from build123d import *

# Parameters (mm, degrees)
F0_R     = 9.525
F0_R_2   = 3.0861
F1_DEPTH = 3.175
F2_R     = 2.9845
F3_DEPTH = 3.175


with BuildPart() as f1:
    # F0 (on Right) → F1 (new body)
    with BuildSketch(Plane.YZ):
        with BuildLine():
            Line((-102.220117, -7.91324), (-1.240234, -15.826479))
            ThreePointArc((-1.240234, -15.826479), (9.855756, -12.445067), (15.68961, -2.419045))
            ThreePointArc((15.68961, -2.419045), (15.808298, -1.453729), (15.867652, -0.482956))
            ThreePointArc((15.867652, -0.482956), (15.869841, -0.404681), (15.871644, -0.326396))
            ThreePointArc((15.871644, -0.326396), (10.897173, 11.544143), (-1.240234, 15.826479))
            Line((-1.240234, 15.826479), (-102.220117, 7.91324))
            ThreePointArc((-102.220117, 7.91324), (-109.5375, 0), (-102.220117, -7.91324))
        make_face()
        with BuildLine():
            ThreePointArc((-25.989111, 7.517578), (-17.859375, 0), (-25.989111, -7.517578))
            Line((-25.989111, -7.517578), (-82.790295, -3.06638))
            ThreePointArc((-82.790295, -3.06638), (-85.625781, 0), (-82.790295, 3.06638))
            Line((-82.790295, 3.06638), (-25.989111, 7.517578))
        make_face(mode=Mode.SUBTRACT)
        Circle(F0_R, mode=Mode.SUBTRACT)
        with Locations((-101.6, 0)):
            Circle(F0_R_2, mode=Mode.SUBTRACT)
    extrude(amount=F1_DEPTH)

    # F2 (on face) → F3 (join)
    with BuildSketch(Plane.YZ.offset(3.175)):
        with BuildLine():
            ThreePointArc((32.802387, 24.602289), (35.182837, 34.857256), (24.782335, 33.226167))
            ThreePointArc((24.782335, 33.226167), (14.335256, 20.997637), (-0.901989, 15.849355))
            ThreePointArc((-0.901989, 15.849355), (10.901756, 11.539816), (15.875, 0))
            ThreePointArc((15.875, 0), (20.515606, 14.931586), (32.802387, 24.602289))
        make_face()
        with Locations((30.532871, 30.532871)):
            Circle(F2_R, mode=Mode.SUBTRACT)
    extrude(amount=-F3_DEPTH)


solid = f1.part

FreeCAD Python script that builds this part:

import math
import FreeCAD as App
import Part
import Sketcher

V = App.Vector
Q = App.Units.Quantity

doc = App.newDocument("Part")
body = doc.addObject("PartDesign::Body", "Body")

# Sketch on YZ plane
sketch1 = body.newObject("Sketcher::SketchObject", "Sketch")
sketch1.AttachmentSupport = (doc.getObject("YZ_Plane"), [""])
sketch1.MapMode = "FlatFace"
sketch1.addGeometry(Part.LineSegment(V(-102.220117, -7.91324, 0), V(-1.240234, -15.826479, 0)), False)
sketch1.addGeometry(Part.ArcOfCircle(Part.Circle(V(0, 0.000001, 0), V(0, 0, 1), 15.875001), math.radians(-94.480796), math.radians(-8.764926)), False)
sketch1.addGeometry(Part.ArcOfCircle(Part.Circle(V(-0.000333, 0.000027, 0), V(0, 0, 1), 15.875334), math.radians(-8.764835), math.radians(-1.743406)), False)
sketch1.addGeometry(Part.ArcOfCircle(Part.Circle(V(-0.005112, 0.000102, 0), V(0, 0, 1), 15.880113), math.radians(-1.743152), math.radians(-1.178095)), False)
sketch1.addGeometry(Part.ArcOfCircle(Part.Circle(V(0, 0, 0), V(0, 0, 1), 15.875), math.radians(-1.178106), math.radians(94.480797)), False)
sketch1.addGeometry(Part.LineSegment(V(-1.240234, 15.826479, 0), V(-102.220117, 7.91324, 0)), False)
sketch1.addGeometry(Part.ArcOfCircle(Part.Circle(V(-101.6, 0, 0), V(0, 0, 1), 7.9375), math.radians(94.4808), math.radians(265.5192)), False)
sketch1.addGeometry(Part.Circle(V(-101.6, 0, 0), V(0, 0, 1), 3.0861), False)
sketch1.addGeometry(Part.LineSegment(V(-82.790295, 3.06638, 0), V(-25.989111, 7.517578, 0)), False)
sketch1.addGeometry(Part.ArcOfCircle(Part.Circle(V(-25.4, 0, 0), V(0, 0, 1), 7.540625), math.radians(-94.480794), math.radians(94.480794)), False)
sketch1.addGeometry(Part.LineSegment(V(-25.989111, -7.517578, 0), V(-82.790295, -3.06638, 0)), False)
sketch1.addGeometry(Part.ArcOfCircle(Part.Circle(V(-82.55, 0, 0), V(0, 0, 1), 3.075781), math.radians(94.480789), math.radians(265.519211)), False)
sketch1.addGeometry(Part.Circle(V(0, 0, 0), V(0, 0, 1), 9.525), False)
sketch1.addConstraint(Sketcher.Constraint("Coincident", 0, 2, 1, 1))
sketch1.addConstraint(Sketcher.Constraint("Coincident", 1, 2, 2, 1))
sketch1.addConstraint(Sketcher.Constraint("Coincident", 2, 2, 3, 1))
sketch1.addConstraint(Sketcher.Constraint("Coincident", 3, 2, 4, 1))
sketch1.addConstraint(Sketcher.Constraint("Coincident", 4, 2, 5, 1))
sketch1.addConstraint(Sketcher.Constraint("Coincident", 5, 2, 6, 1))
sketch1.addConstraint(Sketcher.Constraint("Coincident", 6, 2, 0, 1))
sketch1.addConstraint(Sketcher.Constraint("Coincident", 8, 2, 9, 2))
sketch1.addConstraint(Sketcher.Constraint("Coincident", 9, 1, 10, 1))
sketch1.addConstraint(Sketcher.Constraint("Coincident", 10, 2, 11, 2))
sketch1.addConstraint(Sketcher.Constraint("Coincident", 11, 1, 8, 1))
sketch1.addConstraint(Sketcher.Constraint("Coincident", 1, 3, -1, 1))
sketch1.addConstraint(Sketcher.Constraint("Coincident", 4, 3, -1, 1))
sketch1.addConstraint(Sketcher.Constraint("Coincident", 12, 3, -1, 1))
sketch1.addConstraint(Sketcher.Constraint("Coincident", 7, 3, 6, 3))
sketch1.addConstraint(Sketcher.Constraint("PointOnObject", 6, 3, -1))
sketch1.addConstraint(Sketcher.Constraint("PointOnObject", 9, 3, -1))
sketch1.addConstraint(Sketcher.Constraint("PointOnObject", 11, 3, -1))
sketch1.addConstraint(Sketcher.Constraint("Diameter", 12, Q("0.75 in")))
sketch1.addConstraint(Sketcher.Constraint("Diameter", 7, Q("0.243 in")))
sketch1.addConstraint(Sketcher.Constraint("DistanceX", 6, 3, -1, 1, Q("4 in")))
sketch1.addConstraint(Sketcher.Constraint("DistanceX", 9, 3, -1, 1, Q("1 in")))
sketch1.addConstraint(Sketcher.Constraint("Radius", 1, Q("0.625 in")))
sketch1.addConstraint(Sketcher.Constraint("Radius", 4, Q("0.625 in")))
sketch1.addConstraint(Sketcher.Constraint("Radius", 6, Q("0.3125 in")))
sketch1.addConstraint(Sketcher.Constraint("Radius", 9, Q("0.296875 in")))
sketch1.addConstraint(Sketcher.Constraint("DistanceX", 11, 3, -1, 1, Q("3.25 in")))
sketch1.addConstraint(Sketcher.Constraint("Radius", 11, 3.075781))
sketch1.addConstraint(Sketcher.Constraint("Radius", 2, 15.875334))
sketch1.addConstraint(Sketcher.Constraint("Radius", 3, 15.880113))
sketch1.addConstraint(Sketcher.Constraint("DistanceY", -1, 1, 3, 3, 0.000102))
sketch1.addConstraint(Sketcher.Constraint("DistanceX", 0, 2, 2, 3, 1.239901))
sketch1.addConstraint(Sketcher.Constraint("DistanceX", 4, 2, 2, 3, 1.239901))
sketch1.addConstraint(Sketcher.Constraint("DistanceY", 8, 2, 4, 2, 8.308901))
sketch1.addConstraint(Sketcher.Constraint("DistanceY", 0, 2, 9, 1, 8.308901))
sketch1.addConstraint(Sketcher.Constraint("DistanceX", -1, 1, 1, 2, 15.68961))
sketch1.addConstraint(Sketcher.Constraint("DistanceX", -1, 1, 2, 2, 15.867652))
sketch1.addConstraint(Sketcher.Constraint("DistanceY", -1, 1, 5, 2, 7.91324))
sketch1.addConstraint(Sketcher.Constraint("DistanceY", 6, 2, -1, 1, 7.91324))
sketch1.addConstraint(Sketcher.Constraint("DistanceY", 10, 2, -1, 1, 3.06638))
sketch1.addConstraint(Sketcher.Constraint("DistanceY", -1, 1, 11, 1, 3.06638))
sketch1.addConstraint(Sketcher.Constraint("DistanceX", 2, 2, 3, 2, 0.003992))
pad1 = body.newObject("PartDesign::Pad", "Pad")
pad1.Profile = sketch1
pad1.Length = Q("0.125 in")

# Sketch on YZ plane
sketch2 = body.newObject("Sketcher::SketchObject", "Sketch001")
sketch2.AttachmentSupport = (doc.getObject("YZ_Plane"), [""])
sketch2.MapMode = "FlatFace"
sketch2.AttachmentOffset = App.Placement(V(0, 0, 0.125 * 25.4), App.Rotation())
sketch2.addGeometry(Part.ArcOfCircle(Part.Circle(V(30.53287, 30.53287, 0), V(0, 0, 1), 6.35), math.radians(-69.059135), math.radians(154.903684)), False)
sketch2.addGeometry(Part.ArcOfCircle(Part.Circle(V(-2.621325, 46.060825, 0), V(0, 0, 1), 30.260354), math.radians(-86.742808), math.radians(-25.096306)), False)
sketch2.addGeometry(Part.ArcOfCircle(Part.Circle(V(0, 0.000001, 0), V(0, 0, 1), 15.875), math.radians(-0.000002), math.radians(93.257198)), False)
sketch2.addGeometry(Part.ArcOfCircle(Part.Circle(V(42.217196, -0.000001, 0), V(0, 0, 1), 26.342196), math.radians(110.940858), math.radians(179.999999)), False)
sketch2.addGeometry(Part.Circle(V(30.532871, 30.532871, 0), V(0, 0, 1), 2.9845), False)
sketch2.addConstraint(Sketcher.Constraint("Tangent", 0, 2, 1, 2))
sketch2.addConstraint(Sketcher.Constraint("Tangent", 1, 1, 2, 2))
sketch2.addConstraint(Sketcher.Constraint("Tangent", 2, 1, 3, 2))
sketch2.addConstraint(Sketcher.Constraint("Tangent", 3, 1, 0, 1))
sketch2.addConstraint(Sketcher.Constraint("Coincident", 2, 3, -1, 1))
sketch2.addConstraint(Sketcher.Constraint("Coincident", 4, 3, 0, 3))
sketch2.addConstraint(Sketcher.Constraint("PointOnObject", 3, 3, -1))
sketch2.addConstraint(Sketcher.Constraint("Radius", 0, Q("0.25 in")))
sketch2.addConstraint(Sketcher.Constraint("Diameter", 4, Q("0.235 in")))
sketch2.addConstraint(Sketcher.Constraint("Radius", 2, Q("0.625 in")))
sketch2.addConstraint(Sketcher.Constraint("Radius", 1, 30.260354))
sketch2.addConstraint(Sketcher.Constraint("Radius", 3, 26.342196))
sketch2.addConstraint(Sketcher.Constraint("DistanceX", -1, 1, 0, 3, 30.53287))
pad2 = body.newObject("PartDesign::Pad", "Pad001")
pad2.Profile = sketch2
pad2.Length = Q("0.125 in")
pad2.Reversed = True

doc.recompute()
